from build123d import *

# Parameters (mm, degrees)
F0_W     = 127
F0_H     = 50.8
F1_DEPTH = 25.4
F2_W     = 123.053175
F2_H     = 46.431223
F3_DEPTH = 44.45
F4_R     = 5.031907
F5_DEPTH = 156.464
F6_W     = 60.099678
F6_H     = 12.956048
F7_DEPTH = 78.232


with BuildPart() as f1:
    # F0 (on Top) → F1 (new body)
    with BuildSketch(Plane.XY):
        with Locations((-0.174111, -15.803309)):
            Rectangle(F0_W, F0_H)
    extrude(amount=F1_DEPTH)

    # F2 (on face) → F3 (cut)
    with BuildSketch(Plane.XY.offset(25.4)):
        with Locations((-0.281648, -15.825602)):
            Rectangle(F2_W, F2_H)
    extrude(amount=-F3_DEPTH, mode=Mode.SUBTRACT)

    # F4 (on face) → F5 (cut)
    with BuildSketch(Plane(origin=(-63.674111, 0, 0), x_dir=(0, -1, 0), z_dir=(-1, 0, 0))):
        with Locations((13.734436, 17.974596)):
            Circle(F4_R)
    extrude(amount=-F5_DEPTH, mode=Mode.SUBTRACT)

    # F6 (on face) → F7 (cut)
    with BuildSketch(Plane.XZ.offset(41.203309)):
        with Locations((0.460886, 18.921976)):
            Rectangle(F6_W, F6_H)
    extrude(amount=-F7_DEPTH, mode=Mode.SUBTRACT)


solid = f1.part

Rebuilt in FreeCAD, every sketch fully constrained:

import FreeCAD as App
import Part
import Sketcher
from FreeCAD import Vector
Q = App.Units.Quantity


def add_polygon(sketch, points):
    """Adds a closed chain of lines whose ends are joined by coincident constraints."""
    first, n = sketch.GeometryCount, len(points)
    for a, b in zip(points, points[1:] + points[:1]):
        sketch.addGeometry(Part.LineSegment(App.Vector(*a, 0), App.Vector(*b, 0)), False)
    for i in range(n):
        sketch.addConstraint(Sketcher.Constraint("Coincident", first + i, 2, first + (i + 1) % n, 1))

doc = App.newDocument("Part")
body = doc.addObject("PartDesign::Body", "Body")

# Sketch on XY plane
sketch1 = doc.addObject("Sketcher::SketchObject", "Sketch")
body.addObject(sketch1)
sketch1.AttachmentSupport = (doc.XY_Plane, [""])
sketch1.MapMode = "FlatFace"
add_polygon(sketch1, [(-63.674111, 9.596691), (-63.674111, -41.203309), (63.325889, -41.203309), (63.325889, 9.596691)])  # lines 0-3
sketch1.addConstraint([
    Sketcher.Constraint("Vertical", 0),
    Sketcher.Constraint("Horizontal", 1),
    Sketcher.Constraint("Vertical", 2),
    Sketcher.Constraint("Horizontal", 3),
    Sketcher.Constraint("DistanceX", 1, 1, 1, 2, Q("5 in")),
    Sketcher.Constraint("DistanceY", 0, 2, 0, 1, Q("2 in")),
    Sketcher.Constraint("DistanceX", 0, 2, -1, 1, Q("63.674111 mm")),
    Sketcher.Constraint("DistanceY", 0, 2, -1, 1, Q("41.203309 mm")),
])
pad1 = doc.addObject("PartDesign::Pad", "Pad")
body.addObject(pad1)
pad1.Profile = sketch1
pad1.Length = Q("1 in")

# Sketch on XY plane
sketch2 = doc.addObject("Sketcher::SketchObject", "Sketch001")
body.addObject(sketch2)
sketch2.AttachmentSupport = (doc.XY_Plane, [""])
sketch2.MapMode = "FlatFace"
sketch2.AttachmentOffset = App.Placement(Vector(0, 0, 1 * 25.4), App.Rotation())
add_polygon(sketch2, [(-61.808236, 7.390009), (-61.808236, -39.041213), (61.24494, -39.041213), (61.24494, 7.390009)])  # lines 0-3
sketch2.addConstraint([
    Sketcher.Constraint("Vertical", 0),
    Sketcher.Constraint("Horizontal", 1),
    Sketcher.Constraint("Vertical", 2),
    Sketcher.Constraint("Horizontal", 3),
    Sketcher.Constraint("DistanceX", 1, 1, 1, 2, Q("123.053175 mm")),
    Sketcher.Constraint("DistanceY", 0, 2, 0, 1, Q("46.431223 mm")),
    Sketcher.Constraint("DistanceX", -1, 1, 1, 2, Q("61.24494 mm")),
    Sketcher.Constraint("DistanceY", -1, 1, 2, 2, Q("7.390009 mm")),
])
pocket1 = doc.addObject("PartDesign::Pocket", "Pocket")
body.addObject(pocket1)
pocket1.Profile = sketch2
pocket1.Length = Q("1.75 in")

# Sketch on YZ plane
sketch3 = doc.addObject("Sketcher::SketchObject", "Sketch002")
body.addObject(sketch3)
sketch3.AttachmentSupport = (doc.YZ_Plane, [""])
sketch3.MapMode = "FlatFace"
sketch3.AttachmentOffset = App.Placement(Vector(0, 0, -63.674111), App.Rotation())
sketch3.addGeometry(Part.Circle(Vector(-13.734436, 17.974596, 0), Vector(0, 0, 1), 5.031907), False)
sketch3.addConstraint([
    Sketcher.Constraint("Diameter", 0, Q("10.063814 mm")),
    Sketcher.Constraint("DistanceX", 0, 3, -1, 1, Q("13.734436 mm")),
    Sketcher.Constraint("DistanceY", -1, 1, 0, 3, Q("17.974596 mm")),
])
pocket2 = doc.addObject("PartDesign::Pocket", "Pocket001")
body.addObject(pocket2)
pocket2.Profile = sketch3
pocket2.Length = Q("6.16 in")
pocket2.Reversed = True

# Sketch on XZ plane
sketch4 = doc.addObject("Sketcher::SketchObject", "Sketch003")
body.addObject(sketch4)
sketch4.AttachmentSupport = (doc.XZ_Plane, [""])
sketch4.MapMode = "FlatFace"
sketch4.AttachmentOffset = App.Placement(Vector(0, 0, 41.203309), App.Rotation())
add_polygon(sketch4, [(-29.588953, 25.4), (-29.588953, 12.443952), (30.510725, 12.443952), (30.510725, 25.4)])  # lines 0-3
sketch4.addConstraint([
    Sketcher.Constraint("Vertical", 0),
    Sketcher.Constraint("Horizontal", 1),
    Sketcher.Constraint("Vertical", 2),
    Sketcher.Constraint("Horizontal", 3),
    Sketcher.Constraint("DistanceY", -1, 1, 2, 2, Q("1 in")),
    Sketcher.Constraint("DistanceX", 1, 1, 1, 2, Q("60.099678 mm")),
    Sketcher.Constraint("DistanceY", 0, 2, 0, 1, Q("12.956048 mm")),
    Sketcher.Constraint("DistanceX", 0, 2, -1, 1, Q("29.588953 mm")),
])
pocket3 = doc.addObject("PartDesign::Pocket", "Pocket002")
body.addObject(pocket3)
pocket3.Profile = sketch4
pocket3.Length = Q("3.08 in")

doc.recompute()
